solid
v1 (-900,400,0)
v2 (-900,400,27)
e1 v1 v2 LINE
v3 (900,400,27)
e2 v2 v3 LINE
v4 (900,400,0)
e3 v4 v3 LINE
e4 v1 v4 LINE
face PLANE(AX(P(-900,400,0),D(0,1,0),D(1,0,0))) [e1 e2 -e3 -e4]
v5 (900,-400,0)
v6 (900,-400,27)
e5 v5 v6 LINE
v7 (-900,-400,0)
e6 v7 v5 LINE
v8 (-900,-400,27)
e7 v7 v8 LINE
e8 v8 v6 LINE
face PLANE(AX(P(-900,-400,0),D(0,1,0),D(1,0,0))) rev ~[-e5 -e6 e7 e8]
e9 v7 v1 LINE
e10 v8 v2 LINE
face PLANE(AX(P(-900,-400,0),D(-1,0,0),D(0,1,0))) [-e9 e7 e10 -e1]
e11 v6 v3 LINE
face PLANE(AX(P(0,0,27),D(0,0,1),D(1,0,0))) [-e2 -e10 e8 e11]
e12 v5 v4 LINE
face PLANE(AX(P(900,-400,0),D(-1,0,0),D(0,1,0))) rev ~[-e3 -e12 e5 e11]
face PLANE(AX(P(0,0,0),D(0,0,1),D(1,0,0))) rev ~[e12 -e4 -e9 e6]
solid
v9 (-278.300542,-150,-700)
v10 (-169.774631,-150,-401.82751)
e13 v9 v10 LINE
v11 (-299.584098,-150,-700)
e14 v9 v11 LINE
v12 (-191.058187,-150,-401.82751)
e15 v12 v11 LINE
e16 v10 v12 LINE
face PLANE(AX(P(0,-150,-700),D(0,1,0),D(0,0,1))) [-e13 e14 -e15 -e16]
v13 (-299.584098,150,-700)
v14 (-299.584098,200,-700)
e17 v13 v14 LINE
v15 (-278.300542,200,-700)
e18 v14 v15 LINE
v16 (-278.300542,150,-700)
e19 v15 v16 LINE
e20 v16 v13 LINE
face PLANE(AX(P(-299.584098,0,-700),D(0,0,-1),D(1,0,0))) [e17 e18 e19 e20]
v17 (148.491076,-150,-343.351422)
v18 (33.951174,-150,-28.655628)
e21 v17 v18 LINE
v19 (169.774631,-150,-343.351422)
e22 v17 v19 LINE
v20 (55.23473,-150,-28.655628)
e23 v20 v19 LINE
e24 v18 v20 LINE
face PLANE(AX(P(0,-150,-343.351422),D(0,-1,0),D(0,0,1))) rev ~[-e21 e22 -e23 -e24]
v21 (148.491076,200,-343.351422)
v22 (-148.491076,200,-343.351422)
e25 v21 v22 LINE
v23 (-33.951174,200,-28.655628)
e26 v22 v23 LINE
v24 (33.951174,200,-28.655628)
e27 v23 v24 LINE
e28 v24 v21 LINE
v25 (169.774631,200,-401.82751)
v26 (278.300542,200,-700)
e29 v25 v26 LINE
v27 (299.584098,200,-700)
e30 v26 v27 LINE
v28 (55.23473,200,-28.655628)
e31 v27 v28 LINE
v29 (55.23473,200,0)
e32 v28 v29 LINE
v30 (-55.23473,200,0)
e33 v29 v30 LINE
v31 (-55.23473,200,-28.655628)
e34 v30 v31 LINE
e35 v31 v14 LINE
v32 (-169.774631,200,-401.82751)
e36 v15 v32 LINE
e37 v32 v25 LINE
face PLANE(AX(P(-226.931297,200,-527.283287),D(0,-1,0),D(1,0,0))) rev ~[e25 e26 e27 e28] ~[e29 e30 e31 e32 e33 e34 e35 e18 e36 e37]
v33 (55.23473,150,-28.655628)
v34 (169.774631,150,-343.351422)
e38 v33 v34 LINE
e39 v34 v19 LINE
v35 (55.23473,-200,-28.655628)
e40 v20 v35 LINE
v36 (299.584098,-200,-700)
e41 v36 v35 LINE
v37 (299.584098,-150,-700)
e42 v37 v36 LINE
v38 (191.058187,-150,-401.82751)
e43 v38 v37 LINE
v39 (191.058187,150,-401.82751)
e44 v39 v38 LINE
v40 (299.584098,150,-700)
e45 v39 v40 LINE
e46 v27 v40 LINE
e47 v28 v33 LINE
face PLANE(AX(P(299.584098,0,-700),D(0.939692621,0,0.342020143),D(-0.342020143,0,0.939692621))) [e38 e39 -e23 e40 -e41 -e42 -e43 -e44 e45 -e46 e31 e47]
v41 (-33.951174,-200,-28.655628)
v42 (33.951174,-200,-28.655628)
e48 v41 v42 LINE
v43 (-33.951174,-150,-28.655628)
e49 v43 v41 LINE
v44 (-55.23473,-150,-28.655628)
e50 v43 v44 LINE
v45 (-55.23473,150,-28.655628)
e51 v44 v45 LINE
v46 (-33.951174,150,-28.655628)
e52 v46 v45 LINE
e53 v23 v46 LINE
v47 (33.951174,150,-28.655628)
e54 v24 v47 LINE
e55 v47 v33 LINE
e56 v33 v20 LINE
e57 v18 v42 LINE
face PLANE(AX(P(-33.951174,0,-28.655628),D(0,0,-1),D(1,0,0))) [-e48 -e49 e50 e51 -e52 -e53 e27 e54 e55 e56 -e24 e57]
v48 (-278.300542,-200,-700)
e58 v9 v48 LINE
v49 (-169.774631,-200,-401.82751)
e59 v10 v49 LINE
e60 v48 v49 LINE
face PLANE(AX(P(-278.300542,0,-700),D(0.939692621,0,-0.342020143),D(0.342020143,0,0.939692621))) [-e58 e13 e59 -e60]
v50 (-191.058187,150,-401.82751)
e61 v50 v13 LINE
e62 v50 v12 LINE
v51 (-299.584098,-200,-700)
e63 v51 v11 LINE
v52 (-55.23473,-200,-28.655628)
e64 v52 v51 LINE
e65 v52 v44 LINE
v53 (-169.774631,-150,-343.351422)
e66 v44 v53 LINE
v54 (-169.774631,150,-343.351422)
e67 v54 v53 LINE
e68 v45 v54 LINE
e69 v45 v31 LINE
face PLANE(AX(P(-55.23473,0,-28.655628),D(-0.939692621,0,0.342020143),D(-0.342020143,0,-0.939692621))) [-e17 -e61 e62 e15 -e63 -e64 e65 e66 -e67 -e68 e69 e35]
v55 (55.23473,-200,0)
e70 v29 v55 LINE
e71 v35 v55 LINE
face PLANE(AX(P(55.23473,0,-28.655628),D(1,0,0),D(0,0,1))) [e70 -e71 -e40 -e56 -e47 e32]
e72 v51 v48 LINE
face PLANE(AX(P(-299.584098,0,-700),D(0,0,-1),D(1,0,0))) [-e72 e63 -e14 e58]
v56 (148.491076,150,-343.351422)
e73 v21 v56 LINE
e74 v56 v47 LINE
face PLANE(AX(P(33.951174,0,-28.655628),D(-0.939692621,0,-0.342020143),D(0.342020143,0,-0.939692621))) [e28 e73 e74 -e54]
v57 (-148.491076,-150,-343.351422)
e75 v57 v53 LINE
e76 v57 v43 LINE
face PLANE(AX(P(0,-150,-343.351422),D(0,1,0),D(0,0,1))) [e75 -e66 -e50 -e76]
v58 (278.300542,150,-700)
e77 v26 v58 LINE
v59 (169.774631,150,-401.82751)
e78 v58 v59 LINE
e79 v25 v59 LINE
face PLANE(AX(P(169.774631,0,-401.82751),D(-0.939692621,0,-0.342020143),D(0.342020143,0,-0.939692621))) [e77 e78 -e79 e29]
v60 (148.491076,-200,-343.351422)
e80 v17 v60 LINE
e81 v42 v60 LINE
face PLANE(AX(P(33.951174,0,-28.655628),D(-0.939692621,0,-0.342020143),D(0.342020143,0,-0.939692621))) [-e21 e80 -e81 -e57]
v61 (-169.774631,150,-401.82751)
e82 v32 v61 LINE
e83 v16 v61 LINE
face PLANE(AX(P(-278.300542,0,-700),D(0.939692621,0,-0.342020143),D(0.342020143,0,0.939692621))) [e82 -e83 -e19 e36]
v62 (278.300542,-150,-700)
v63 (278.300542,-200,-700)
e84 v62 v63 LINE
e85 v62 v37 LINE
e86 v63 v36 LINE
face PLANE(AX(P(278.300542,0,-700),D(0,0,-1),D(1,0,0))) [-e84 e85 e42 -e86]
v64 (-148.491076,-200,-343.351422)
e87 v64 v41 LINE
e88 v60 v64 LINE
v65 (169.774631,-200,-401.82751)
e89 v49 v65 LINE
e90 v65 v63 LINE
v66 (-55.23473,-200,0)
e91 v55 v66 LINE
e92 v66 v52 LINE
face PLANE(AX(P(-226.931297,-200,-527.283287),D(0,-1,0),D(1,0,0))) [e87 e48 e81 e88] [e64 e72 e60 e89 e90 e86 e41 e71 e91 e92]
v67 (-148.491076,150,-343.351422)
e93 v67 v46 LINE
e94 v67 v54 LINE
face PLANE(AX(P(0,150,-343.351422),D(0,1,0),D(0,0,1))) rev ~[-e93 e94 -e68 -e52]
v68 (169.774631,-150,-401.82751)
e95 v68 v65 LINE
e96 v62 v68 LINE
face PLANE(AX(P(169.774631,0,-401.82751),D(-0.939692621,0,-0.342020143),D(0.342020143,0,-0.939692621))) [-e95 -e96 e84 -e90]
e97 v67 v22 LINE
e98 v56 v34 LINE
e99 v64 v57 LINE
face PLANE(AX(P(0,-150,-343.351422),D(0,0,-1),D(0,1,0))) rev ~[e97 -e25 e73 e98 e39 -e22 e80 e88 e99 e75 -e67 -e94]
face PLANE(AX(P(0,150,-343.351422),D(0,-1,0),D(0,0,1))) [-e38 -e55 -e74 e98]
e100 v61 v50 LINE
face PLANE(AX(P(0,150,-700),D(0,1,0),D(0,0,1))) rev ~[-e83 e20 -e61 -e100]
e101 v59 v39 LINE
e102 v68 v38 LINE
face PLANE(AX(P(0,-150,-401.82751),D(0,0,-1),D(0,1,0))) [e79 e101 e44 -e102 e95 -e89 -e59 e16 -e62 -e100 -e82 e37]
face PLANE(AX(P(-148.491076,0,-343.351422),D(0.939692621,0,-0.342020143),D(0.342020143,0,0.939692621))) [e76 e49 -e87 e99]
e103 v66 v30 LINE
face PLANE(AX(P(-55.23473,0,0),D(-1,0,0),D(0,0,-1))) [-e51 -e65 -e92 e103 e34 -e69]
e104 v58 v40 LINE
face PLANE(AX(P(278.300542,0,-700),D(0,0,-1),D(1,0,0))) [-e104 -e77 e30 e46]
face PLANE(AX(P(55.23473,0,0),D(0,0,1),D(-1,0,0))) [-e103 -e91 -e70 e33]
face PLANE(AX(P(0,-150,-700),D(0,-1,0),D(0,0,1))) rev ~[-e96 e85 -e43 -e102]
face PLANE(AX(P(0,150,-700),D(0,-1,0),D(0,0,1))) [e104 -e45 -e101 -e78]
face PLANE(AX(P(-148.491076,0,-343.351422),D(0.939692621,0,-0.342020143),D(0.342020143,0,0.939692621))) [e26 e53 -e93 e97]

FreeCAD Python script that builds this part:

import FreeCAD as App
import Part
import Sketcher

V = App.Vector
Q = App.Units.Quantity

doc = App.newDocument("Part")
params = doc.addObject("Spreadsheet::Sheet", "Params")
for row, (alias, value) in enumerate([
    ("sketch1_width", "1800 mm"),
    ("sketch1_height", "800 mm"),
    ("pad1_length", "27 mm"),
    ("pad2_length", "400 mm"),
    ("sketch3_width", "300 mm"),
], start=1):
    params.set(f"A{row}", alias)
    params.set(f"B{row}", "=" + value)
    params.setAlias(f"B{row}", alias)

body = doc.addObject("PartDesign::Body", "Body")

# Sketch on XY plane
sketch1 = doc.addObject("Sketcher::SketchObject", "Sketch")
body.addObject(sketch1)
sketch1.AttachmentSupport = (doc.XY_Plane, [""])
sketch1.MapMode = "FlatFace"
sketch1.addGeometry([
    Part.LineSegment(V(-900, 400, 0), V(-900, -400, 0)),
    Part.LineSegment(V(-900, -400, 0), V(900, -400, 0)),
    Part.LineSegment(V(900, -400, 0), V(900, 400, 0)),
    Part.LineSegment(V(900, 400, 0), V(-900, 400, 0)),
], False)
sketch1.addConstraint([
    Sketcher.Constraint("Coincident", 0, 2, 1, 1),
    Sketcher.Constraint("Coincident", 1, 2, 2, 1),
    Sketcher.Constraint("Coincident", 2, 2, 3, 1),
    Sketcher.Constraint("Coincident", 3, 2, 0, 1),
    Sketcher.Constraint("Vertical", 0),
    Sketcher.Constraint("Horizontal", 1),
    Sketcher.Constraint("Vertical", 2),
    Sketcher.Constraint("Horizontal", 3),
    Sketcher.Constraint("Symmetric", 0, 2, 2, 2, -1, 1),
    Sketcher.Constraint("DistanceX", 1, 1, 1, 2, 1800.0),
    Sketcher.Constraint("DistanceY", 0, 2, 0, 1, 800.0),
])
sketch1.setExpression("Constraints[9]", "Params.sketch1_width")
sketch1.setExpression("Constraints[10]", "Params.sketch1_height")
pad1 = doc.addObject("PartDesign::Pad", "Pad")
body.addObject(pad1)
pad1.Profile = sketch1
pad1.setExpression("Length", "Params.pad1_length")
body2 = doc.addObject("PartDesign::Body", "Body001")

# Sketch on XZ plane
sketch2 = doc.addObject("Sketcher::SketchObject", "Sketch001")
body2.addObject(sketch2)
sketch2.AttachmentSupport = (doc.getObject("XZ_Plane001"), [""])
sketch2.MapMode = "FlatFace"
sketch2.addGeometry([
    Part.LineSegment(V(-300, -700, 0), V(-278, -700, 0)),  # 0
    Part.LineSegment(V(-278, -700, 0), V(-170, -402, 0)),  # 1
    Part.LineSegment(V(-170, -402, 0), V(170, -402, 0)),  # 2
    Part.LineSegment(V(170, -402, 0), V(278, -700, 0)),  # 3
    Part.LineSegment(V(278, -700, 0), V(300, -700, 0)),  # 4
    Part.LineSegment(V(300, -700, 0), V(55, -29, 0)),  # 5
    Part.LineSegment(V(55, -29, 0), V(55, 0, 0)),  # 6
    Part.LineSegment(V(55, 0, 0), V(-55, 0, 0)),  # 7
    Part.LineSegment(V(-55, 0, 0), V(-55, -29, 0)),  # 8
    Part.LineSegment(V(-55, -29, 0), V(-300, -700, 0)),  # 9
    Part.LineSegment(V(-148, -343, 0), V(-34, -29, 0)),  # 10
    Part.LineSegment(V(-34, -29, 0), V(34, -29, 0)),  # 11
    Part.LineSegment(V(34, -29, 0), V(148, -343, 0)),  # 12
    Part.LineSegment(V(148, -343, 0), V(-148, -343, 0)),  # 13
], False)
sketch2.addConstraint([
    Sketcher.Constraint("Coincident", 0, 2, 1, 1),
    Sketcher.Constraint("Coincident", 1, 2, 2, 1),
    Sketcher.Constraint("Coincident", 2, 2, 3, 1),
    Sketcher.Constraint("Coincident", 3, 2, 4, 1),
    Sketcher.Constraint("Coincident", 4, 2, 5, 1),
    Sketcher.Constraint("Coincident", 5, 2, 6, 1),
    Sketcher.Constraint("Coincident", 6, 2, 7, 1),
    Sketcher.Constraint("Coincident", 7, 2, 8, 1),
    Sketcher.Constraint("Coincident", 8, 2, 9, 1),
    Sketcher.Constraint("Coincident", 9, 2, 0, 1),
    Sketcher.Constraint("Coincident", 10, 2, 11, 1),
    Sketcher.Constraint("Coincident", 11, 2, 12, 1),
    Sketcher.Constraint("Coincident", 12, 2, 13, 1),
    Sketcher.Constraint("Coincident", 13, 2, 10, 1),
    Sketcher.Constraint("Horizontal", 0),
    Sketcher.Constraint("Horizontal", 2),
    Sketcher.Constraint("Horizontal", 4),
    Sketcher.Constraint("Vertical", 6),
    Sketcher.Constraint("Horizontal", 7),
    Sketcher.Constraint("Vertical", 8),
    Sketcher.Constraint("Horizontal", 11),
    Sketcher.Constraint("Horizontal", 13),
    Sketcher.Constraint("Symmetric", 6, 2, 7, 2, -1, 1),
    Sketcher.Constraint("Symmetric", 0, 2, 3, 2, -2),
    Sketcher.Constraint("Parallel", 3, 5),
    Sketcher.Constraint("Parallel", 1, 9),
    Sketcher.Constraint("Parallel", 9, 10),
    Sketcher.Constraint("Parallel", 5, 12),
    Sketcher.Constraint("Horizontal", 5, 2, 8, 2),
    Sketcher.Constraint("Horizontal", 8, 2, 10, 2),
    Sketcher.Constraint("Equal", 0, 4),
    Sketcher.Constraint("Angle", 1, Q("70 deg")),
    Sketcher.Constraint("DistanceY", 0, 2, -1, 1, 700.0),
    Sketcher.Constraint("DistanceX", 7, 2, 7, 1, 110.469459),
    Sketcher.Constraint("DistanceX", 11, 1, 11, 2, 67.902348),
    Sketcher.Constraint("DistanceX", 13, 2, 13, 1, 296.982152),
    Sketcher.Constraint("DistanceY", 6, 1, 6, 2, 28.655628),
    Sketcher.Constraint("DistanceX", 5, 2, 2, 2, 114.539902),
    Sketcher.Constraint("DistanceX", 0, 1, 0, 2, 21.283555),
    Sketcher.Constraint("DistanceX", 10, 2, -1, 1, 33.951174),
])
pad2 = doc.addObject("PartDesign::Pad", "Pad001")
body2.addObject(pad2)
pad2.Profile = sketch2
pad2.setExpression("Length", "Params.pad2_length")
pad2.Midplane = True

# Sketch on YZ plane
sketch3 = doc.addObject("Sketcher::SketchObject", "Sketch002")
body2.addObject(sketch3)
sketch3.AttachmentSupport = (doc.getObject("YZ_Plane001"), [""])
sketch3.MapMode = "FlatFace"
sketch3.addGeometry([
    Part.LineSegment(V(-150, -29, 0), V(-150, -343, 0)),  # 0
    Part.LineSegment(V(-150, -343, 0), V(150, -343, 0)),  # 1
    Part.LineSegment(V(150, -343, 0), V(150, -29, 0)),  # 2
    Part.LineSegment(V(150, -29, 0), V(-150, -29, 0)),  # 3
    Part.LineSegment(V(-150, -402, 0), V(-150, -700, 0)),  # 4
    Part.LineSegment(V(-150, -700, 0), V(150, -700, 0)),  # 5
    Part.LineSegment(V(150, -700, 0), V(150, -402, 0)),  # 6
    Part.LineSegment(V(150, -402, 0), V(-150, -402, 0)),  # 7
], False)
sketch3.addConstraint([
    Sketcher.Constraint("Coincident", 0, 2, 1, 1),
    Sketcher.Constraint("Coincident", 1, 2, 2, 1),
    Sketcher.Constraint("Coincident", 2, 2, 3, 1),
    Sketcher.Constraint("Coincident", 3, 2, 0, 1),
    Sketcher.Constraint("Coincident", 4, 2, 5, 1),
    Sketcher.Constraint("Coincident", 5, 2, 6, 1),
    Sketcher.Constraint("Coincident", 6, 2, 7, 1),
    Sketcher.Constraint("Coincident", 7, 2, 4, 1),
    Sketcher.Constraint("Vertical", 0),
    Sketcher.Constraint("Horizontal", 1),
    Sketcher.Constraint("Vertical", 2),
    Sketcher.Constraint("Horizontal", 3),
    Sketcher.Constraint("Vertical", 4),
    Sketcher.Constraint("Horizontal", 5),
    Sketcher.Constraint("Vertical", 6),
    Sketcher.Constraint("Horizontal", 7),
    Sketcher.Constraint("Vertical", 3, 2, 4, 2),
    Sketcher.Constraint("Vertical", 2, 2, 5, 2),
    Sketcher.Constraint("DistanceX", 1, 1, 1, 2, 300.0),
    Sketcher.Constraint("DistanceX", 0, 2, -1, 1, 150.0),
    Sketcher.Constraint("DistanceY", 4, 2, -1, 1, 700.0),
    Sketcher.Constraint("DistanceY", 4, 2, 4, 1, 298.17249),
    Sketcher.Constraint("DistanceY", 0, 2, 0, 1, 314.695794),
    Sketcher.Constraint("DistanceY", 2, 2, -1, 1, 28.655628),
])
sketch3.setExpression("Constraints[18]", "Params.sketch3_width")
pocket1 = doc.addObject("PartDesign::Pocket", "Pocket")
body2.addObject(pocket1)
pocket1.Profile = sketch3
pocket1.Type = "ThroughAll"
pocket1.Midplane = True

doc.recompute()
